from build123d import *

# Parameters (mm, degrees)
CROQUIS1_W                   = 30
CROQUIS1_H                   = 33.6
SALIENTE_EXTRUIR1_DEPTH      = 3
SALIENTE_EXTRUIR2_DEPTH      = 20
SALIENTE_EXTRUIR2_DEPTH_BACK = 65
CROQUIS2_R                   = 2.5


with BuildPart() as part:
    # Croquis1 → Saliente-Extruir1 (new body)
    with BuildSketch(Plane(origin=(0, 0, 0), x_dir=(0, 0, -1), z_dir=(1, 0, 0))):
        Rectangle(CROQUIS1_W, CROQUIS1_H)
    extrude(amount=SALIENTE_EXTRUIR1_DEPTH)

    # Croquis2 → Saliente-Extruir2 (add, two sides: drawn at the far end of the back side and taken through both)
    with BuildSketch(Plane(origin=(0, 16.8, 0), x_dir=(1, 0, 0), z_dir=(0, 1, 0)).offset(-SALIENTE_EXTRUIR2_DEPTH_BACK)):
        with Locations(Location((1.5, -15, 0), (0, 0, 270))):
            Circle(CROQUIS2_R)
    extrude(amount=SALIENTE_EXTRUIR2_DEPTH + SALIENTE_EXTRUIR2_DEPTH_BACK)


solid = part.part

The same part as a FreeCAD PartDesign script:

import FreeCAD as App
import Part
import Sketcher

V = App.Vector


def add_polygon(sketch, points):
    """Adds a closed chain of lines whose ends are joined by coincident constraints."""
    first, n = sketch.GeometryCount, len(points)
    for a, b in zip(points, points[1:] + points[:1]):
        sketch.addGeometry(Part.LineSegment(App.Vector(*a, 0), App.Vector(*b, 0)), False)
    for i in range(n):
        sketch.addConstraint(Sketcher.Constraint("Coincident", first + i, 2, first + (i + 1) % n, 1))

doc = App.newDocument("Part")
body = doc.addObject("PartDesign::Body", "Body")

sketch1 = body.newObject("Sketcher::SketchObject", "Sketch")
sketch1.AttachmentSupport = (doc.getObject("YZ_Plane"), [""])
sketch1.MapMode = "FlatFace"
add_polygon(sketch1, [(17, 15), (-17, 15), (-17, -15), (17, -15)])
sketch1.addConstraint(Sketcher.Constraint("Horizontal", 0))
sketch1.addConstraint(Sketcher.Constraint("Vertical", 1))
sketch1.addConstraint(Sketcher.Constraint("Horizontal", 2))
sketch1.addConstraint(Sketcher.Constraint("Vertical", 3))
sketch1.addConstraint(Sketcher.Constraint("Symmetric", 0, 2, 2, 2, -1, 1))
sketch1.addConstraint(Sketcher.Constraint("DistanceY", 1, 2, 1, 1, 30.0))
sketch1.addConstraint(Sketcher.Constraint("DistanceX", 0, 2, 0, 1, 33.6))
pad1 = body.newObject("PartDesign::Pad", "Pad")
pad1.Profile = sketch1
pad1.Length = 3

sketch2 = body.newObject("Sketcher::SketchObject", "Sketch001")
sketch2.AttachmentSupport = (doc.getObject("XZ_Plane"), [""])
sketch2.MapMode = "FlatFace"
sketch2.AttachmentOffset = App.Placement(V(0, 0, -16.8), App.Rotation())
sketch2.addGeometry(Part.Circle(V(1.5, 15, 0), V(0, 0, 1), 2.5), False)
sketch2.addConstraint(Sketcher.Constraint("Diameter", 0, 5.0))
sketch2.addConstraint(Sketcher.Constraint("DistanceY", -1, 1, 0, 3, 15.0))
sketch2.addConstraint(Sketcher.Constraint("DistanceX", -1, 1, 0, 3, 1.5))
pad2 = body.newObject("PartDesign::Pad", "Pad001")
pad2.Profile = sketch2
pad2.Type = "TwoLengths"
pad2.Length = 20
pad2.Length2 = 65
pad2.Reversed = True

doc.recompute()
